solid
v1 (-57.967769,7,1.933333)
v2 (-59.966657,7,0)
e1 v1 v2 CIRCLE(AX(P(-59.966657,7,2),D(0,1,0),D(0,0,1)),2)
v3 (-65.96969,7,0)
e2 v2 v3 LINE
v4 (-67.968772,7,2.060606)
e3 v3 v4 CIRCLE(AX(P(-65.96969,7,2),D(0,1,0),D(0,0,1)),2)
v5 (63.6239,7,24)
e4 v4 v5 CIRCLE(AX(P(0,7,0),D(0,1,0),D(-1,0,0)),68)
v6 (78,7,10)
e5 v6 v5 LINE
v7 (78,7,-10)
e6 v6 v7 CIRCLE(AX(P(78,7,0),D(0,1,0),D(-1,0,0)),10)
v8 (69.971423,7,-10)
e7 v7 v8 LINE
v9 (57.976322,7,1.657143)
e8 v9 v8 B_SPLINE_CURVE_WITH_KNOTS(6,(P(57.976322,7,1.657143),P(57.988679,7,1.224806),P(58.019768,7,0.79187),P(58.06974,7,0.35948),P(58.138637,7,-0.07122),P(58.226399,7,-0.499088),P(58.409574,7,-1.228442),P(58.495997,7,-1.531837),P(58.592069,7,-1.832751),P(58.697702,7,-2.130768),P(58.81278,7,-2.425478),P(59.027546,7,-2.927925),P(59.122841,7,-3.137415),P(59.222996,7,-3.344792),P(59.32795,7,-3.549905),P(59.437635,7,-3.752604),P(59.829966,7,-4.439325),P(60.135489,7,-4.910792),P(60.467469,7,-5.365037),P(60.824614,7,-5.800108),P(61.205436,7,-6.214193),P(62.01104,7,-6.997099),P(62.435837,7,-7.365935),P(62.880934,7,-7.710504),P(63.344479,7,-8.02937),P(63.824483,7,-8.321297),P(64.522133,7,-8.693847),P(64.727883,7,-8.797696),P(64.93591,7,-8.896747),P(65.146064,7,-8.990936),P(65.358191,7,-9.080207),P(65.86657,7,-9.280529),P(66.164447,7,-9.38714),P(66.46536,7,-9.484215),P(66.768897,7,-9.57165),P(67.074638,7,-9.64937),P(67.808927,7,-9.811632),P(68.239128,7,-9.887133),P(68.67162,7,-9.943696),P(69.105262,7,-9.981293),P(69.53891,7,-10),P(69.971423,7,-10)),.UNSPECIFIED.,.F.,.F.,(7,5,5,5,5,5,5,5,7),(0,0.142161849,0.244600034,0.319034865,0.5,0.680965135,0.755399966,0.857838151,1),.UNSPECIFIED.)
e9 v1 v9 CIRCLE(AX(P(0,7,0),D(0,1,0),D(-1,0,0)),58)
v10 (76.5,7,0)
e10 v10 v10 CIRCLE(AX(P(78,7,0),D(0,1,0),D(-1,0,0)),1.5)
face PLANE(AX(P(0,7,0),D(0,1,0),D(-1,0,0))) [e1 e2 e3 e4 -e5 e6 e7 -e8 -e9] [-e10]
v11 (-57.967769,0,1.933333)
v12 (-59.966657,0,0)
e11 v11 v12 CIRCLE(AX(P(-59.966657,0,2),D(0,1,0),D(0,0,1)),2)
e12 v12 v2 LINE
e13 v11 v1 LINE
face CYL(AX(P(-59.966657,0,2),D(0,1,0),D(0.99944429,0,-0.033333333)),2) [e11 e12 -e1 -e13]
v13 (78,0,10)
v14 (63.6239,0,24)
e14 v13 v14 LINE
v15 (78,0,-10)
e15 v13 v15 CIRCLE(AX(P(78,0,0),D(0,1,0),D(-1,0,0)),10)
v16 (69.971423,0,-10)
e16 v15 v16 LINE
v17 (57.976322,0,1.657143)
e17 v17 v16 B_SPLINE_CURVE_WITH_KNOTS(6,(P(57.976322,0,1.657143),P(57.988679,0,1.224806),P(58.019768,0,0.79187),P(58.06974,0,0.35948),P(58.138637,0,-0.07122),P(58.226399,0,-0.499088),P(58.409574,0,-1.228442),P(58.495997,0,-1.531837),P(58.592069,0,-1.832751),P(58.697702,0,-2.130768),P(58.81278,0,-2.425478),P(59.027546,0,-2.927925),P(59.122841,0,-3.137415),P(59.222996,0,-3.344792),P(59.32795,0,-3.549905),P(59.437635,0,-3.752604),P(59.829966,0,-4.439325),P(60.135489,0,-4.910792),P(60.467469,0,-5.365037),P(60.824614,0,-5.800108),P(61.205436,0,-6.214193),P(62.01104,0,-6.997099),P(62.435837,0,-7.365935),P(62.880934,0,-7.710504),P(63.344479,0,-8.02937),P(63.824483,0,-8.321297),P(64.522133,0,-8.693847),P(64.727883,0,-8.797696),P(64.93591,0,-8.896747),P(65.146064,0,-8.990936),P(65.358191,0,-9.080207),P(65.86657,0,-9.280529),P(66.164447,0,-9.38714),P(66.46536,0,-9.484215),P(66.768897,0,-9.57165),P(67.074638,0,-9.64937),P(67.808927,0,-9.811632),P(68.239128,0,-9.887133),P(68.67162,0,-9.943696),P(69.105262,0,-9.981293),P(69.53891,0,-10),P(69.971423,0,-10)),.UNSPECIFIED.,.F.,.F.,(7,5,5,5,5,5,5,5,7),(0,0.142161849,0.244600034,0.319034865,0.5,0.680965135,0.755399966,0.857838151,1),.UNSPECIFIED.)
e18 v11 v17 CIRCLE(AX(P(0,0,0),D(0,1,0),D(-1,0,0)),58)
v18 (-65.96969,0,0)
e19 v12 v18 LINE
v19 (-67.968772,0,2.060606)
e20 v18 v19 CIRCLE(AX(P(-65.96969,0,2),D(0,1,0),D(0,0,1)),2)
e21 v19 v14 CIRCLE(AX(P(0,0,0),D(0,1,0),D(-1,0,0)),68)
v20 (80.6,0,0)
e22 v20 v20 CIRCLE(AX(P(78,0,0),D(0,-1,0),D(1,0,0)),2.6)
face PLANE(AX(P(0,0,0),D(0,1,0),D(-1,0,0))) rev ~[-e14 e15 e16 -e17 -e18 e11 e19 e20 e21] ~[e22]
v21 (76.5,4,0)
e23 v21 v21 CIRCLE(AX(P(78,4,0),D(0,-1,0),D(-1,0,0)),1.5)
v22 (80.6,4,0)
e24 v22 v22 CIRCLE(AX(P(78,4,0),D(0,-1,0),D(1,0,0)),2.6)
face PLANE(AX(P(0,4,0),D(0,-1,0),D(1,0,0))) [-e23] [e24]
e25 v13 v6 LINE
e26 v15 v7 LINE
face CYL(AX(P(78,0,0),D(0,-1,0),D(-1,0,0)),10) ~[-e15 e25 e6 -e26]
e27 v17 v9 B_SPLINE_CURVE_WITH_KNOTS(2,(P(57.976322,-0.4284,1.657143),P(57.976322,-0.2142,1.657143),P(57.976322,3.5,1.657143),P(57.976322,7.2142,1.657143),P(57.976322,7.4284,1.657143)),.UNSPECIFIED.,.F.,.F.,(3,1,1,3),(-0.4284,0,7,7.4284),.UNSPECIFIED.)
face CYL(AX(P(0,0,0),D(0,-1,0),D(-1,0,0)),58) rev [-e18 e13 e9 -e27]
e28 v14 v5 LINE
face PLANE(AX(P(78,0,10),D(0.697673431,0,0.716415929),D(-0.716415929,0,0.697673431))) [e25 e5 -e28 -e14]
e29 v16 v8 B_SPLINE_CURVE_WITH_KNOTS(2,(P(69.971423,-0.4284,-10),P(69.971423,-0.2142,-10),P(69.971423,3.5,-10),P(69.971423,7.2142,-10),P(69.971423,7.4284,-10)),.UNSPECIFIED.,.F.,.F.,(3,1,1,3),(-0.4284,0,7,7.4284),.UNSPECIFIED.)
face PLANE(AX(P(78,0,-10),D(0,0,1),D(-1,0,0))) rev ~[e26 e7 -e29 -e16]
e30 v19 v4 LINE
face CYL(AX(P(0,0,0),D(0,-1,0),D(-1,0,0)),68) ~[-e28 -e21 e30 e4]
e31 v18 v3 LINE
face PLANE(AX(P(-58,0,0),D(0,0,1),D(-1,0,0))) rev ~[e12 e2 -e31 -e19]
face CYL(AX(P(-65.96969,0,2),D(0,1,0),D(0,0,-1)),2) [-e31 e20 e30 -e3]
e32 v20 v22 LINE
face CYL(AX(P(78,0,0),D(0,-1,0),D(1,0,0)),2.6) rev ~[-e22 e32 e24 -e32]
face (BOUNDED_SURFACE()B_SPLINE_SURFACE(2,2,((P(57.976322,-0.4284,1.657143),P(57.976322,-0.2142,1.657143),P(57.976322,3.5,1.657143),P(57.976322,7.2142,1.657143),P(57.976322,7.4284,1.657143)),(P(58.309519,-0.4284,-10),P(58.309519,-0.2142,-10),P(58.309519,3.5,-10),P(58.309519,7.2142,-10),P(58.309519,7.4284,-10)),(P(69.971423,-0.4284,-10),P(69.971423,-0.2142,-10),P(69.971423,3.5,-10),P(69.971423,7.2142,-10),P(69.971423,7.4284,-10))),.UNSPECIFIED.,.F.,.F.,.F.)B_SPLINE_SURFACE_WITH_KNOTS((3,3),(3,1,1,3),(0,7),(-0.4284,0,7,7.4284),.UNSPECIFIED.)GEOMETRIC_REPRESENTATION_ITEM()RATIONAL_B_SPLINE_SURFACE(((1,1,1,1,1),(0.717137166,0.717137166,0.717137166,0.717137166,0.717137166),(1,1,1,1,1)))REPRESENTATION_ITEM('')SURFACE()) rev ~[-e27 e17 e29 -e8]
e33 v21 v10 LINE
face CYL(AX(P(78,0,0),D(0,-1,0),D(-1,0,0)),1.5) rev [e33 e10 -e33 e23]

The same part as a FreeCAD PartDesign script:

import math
import FreeCAD as App
import Part
import Sketcher
Q = App.Units.Quantity


def edges_at(feature, points):
    """Names of the edges that pass closest to the given points."""
    edges = feature.Shape.Edges
    near = lambda p: min(range(len(edges)), key=lambda i: edges[i].distToShape(Part.Vertex(*p))[0])
    return sorted({f"Edge{near(p) + 1}" for p in points})

doc = App.newDocument("Part")
body = doc.addObject("PartDesign::Body", "Body")

# Sketch on XZ plane
sketch1 = body.newObject("Sketcher::SketchObject", "Sketch")
sketch1.AttachmentSupport = (doc.getObject("XZ_Plane"), [""])
sketch1.MapMode = "FlatFace"
sketch1.addGeometry([
    Part.ArcOfCircle(Part.Circle(App.Vector(0, 0, 0), App.Vector(0, 0, 1), 58), math.radians(0), math.radians(180)),  # 0
    Part.LineSegment(App.Vector(-58, 0, 0), App.Vector(-68, 0, 0)),  # 1
    Part.ArcOfCircle(Part.Circle(App.Vector(0, 0, 0), App.Vector(0, 0, 1), 68), math.radians(21), math.radians(180)),  # 2
    Part.LineSegment(App.Vector(63.6, 24, 0), App.Vector(78, 10, 0)),  # 3
    Part.ArcOfCircle(Part.Circle(App.Vector(78, 0, 0), App.Vector(0, 0, 1), 10), math.radians(-90), math.radians(90)),  # 4
    Part.LineSegment(App.Vector(78, -10, 0), App.Vector(58, -10, 0)),  # 5
    Part.LineSegment(App.Vector(58, -10, 0), App.Vector(58, 0, 0)),  # 6
    Part.Circle(App.Vector(78, 0, 0), App.Vector(0, 0, 1), 1.5),  # 7
], False)
sketch1.addConstraint([
    Sketcher.Constraint("Coincident", 0, 2, 1, 1),
    Sketcher.Constraint("Coincident", 1, 2, 2, 2),
    Sketcher.Constraint("Coincident", 2, 1, 3, 1),
    Sketcher.Constraint("Coincident", 3, 2, 4, 2),
    Sketcher.Constraint("Tangent", 4, 1, 5, 1),
    Sketcher.Constraint("Coincident", 5, 2, 6, 1),
    Sketcher.Constraint("Tangent", 6, 2, 0, 1),
    Sketcher.Constraint("Horizontal", 1),
    Sketcher.Constraint("Horizontal", 5),
    Sketcher.Constraint("Vertical", 6),
    Sketcher.Constraint("Coincident", 0, 3, -1, 1),
    Sketcher.Constraint("Coincident", 2, 3, -1, 1),
    Sketcher.Constraint("Coincident", 7, 3, 4, 3),
    Sketcher.Constraint("Symmetric", 3, 2, 4, 1, -1),
    Sketcher.Constraint("PointOnObject", 0, 2, -1),
    Sketcher.Constraint("Equal", 1, 6),
    Sketcher.Constraint("Diameter", 7, Q("3 mm")),
    Sketcher.Constraint("Radius", 0, Q("58 mm")),
    Sketcher.Constraint("Radius", 2, Q("68 mm")),
    Sketcher.Constraint("DistanceX", 5, 2, 5, 1, Q("20 mm")),
    Sketcher.Constraint("DistanceY", -1, 1, 2, 1, Q("24 mm")),
])
pad1 = body.newObject("PartDesign::Pad", "Pad")
pad1.Profile = sketch1
pad1.Length = 7
pad1.Reversed = True

# Sketch on XZ plane
sketch2 = body.newObject("Sketcher::SketchObject", "Sketch001")
sketch2.AttachmentSupport = (doc.getObject("XZ_Plane"), [""])
sketch2.MapMode = "FlatFace"
sketch2.addGeometry(Part.Circle(App.Vector(78, 0, 0), App.Vector(0, 0, 1), 2.6), False)
sketch2.addConstraint([
    Sketcher.Constraint("PointOnObject", 0, 3, -1),
    Sketcher.Constraint("Diameter", 0, Q("5.2 mm")),
    Sketcher.Constraint("DistanceX", -1, 1, 0, 3, Q("78 mm")),
])
pocket1 = body.newObject("PartDesign::Pocket", "Pocket")
pocket1.Profile = sketch2
pocket1.Length = 4
doc.recompute()

fillet = body.newObject("PartDesign::Fillet", "Fillet")
fillet.Base = (pocket1, edges_at(pocket1, [(58, 3.5, -10)]))
fillet.Radius = 12
doc.recompute()

fillet2 = body.newObject("PartDesign::Fillet", "Fillet001")
fillet2.Base = (fillet, edges_at(fillet, [(-68, 3.5, 0), (-58, 3.5, 0)]))
fillet2.Radius = 2

doc.recompute()
